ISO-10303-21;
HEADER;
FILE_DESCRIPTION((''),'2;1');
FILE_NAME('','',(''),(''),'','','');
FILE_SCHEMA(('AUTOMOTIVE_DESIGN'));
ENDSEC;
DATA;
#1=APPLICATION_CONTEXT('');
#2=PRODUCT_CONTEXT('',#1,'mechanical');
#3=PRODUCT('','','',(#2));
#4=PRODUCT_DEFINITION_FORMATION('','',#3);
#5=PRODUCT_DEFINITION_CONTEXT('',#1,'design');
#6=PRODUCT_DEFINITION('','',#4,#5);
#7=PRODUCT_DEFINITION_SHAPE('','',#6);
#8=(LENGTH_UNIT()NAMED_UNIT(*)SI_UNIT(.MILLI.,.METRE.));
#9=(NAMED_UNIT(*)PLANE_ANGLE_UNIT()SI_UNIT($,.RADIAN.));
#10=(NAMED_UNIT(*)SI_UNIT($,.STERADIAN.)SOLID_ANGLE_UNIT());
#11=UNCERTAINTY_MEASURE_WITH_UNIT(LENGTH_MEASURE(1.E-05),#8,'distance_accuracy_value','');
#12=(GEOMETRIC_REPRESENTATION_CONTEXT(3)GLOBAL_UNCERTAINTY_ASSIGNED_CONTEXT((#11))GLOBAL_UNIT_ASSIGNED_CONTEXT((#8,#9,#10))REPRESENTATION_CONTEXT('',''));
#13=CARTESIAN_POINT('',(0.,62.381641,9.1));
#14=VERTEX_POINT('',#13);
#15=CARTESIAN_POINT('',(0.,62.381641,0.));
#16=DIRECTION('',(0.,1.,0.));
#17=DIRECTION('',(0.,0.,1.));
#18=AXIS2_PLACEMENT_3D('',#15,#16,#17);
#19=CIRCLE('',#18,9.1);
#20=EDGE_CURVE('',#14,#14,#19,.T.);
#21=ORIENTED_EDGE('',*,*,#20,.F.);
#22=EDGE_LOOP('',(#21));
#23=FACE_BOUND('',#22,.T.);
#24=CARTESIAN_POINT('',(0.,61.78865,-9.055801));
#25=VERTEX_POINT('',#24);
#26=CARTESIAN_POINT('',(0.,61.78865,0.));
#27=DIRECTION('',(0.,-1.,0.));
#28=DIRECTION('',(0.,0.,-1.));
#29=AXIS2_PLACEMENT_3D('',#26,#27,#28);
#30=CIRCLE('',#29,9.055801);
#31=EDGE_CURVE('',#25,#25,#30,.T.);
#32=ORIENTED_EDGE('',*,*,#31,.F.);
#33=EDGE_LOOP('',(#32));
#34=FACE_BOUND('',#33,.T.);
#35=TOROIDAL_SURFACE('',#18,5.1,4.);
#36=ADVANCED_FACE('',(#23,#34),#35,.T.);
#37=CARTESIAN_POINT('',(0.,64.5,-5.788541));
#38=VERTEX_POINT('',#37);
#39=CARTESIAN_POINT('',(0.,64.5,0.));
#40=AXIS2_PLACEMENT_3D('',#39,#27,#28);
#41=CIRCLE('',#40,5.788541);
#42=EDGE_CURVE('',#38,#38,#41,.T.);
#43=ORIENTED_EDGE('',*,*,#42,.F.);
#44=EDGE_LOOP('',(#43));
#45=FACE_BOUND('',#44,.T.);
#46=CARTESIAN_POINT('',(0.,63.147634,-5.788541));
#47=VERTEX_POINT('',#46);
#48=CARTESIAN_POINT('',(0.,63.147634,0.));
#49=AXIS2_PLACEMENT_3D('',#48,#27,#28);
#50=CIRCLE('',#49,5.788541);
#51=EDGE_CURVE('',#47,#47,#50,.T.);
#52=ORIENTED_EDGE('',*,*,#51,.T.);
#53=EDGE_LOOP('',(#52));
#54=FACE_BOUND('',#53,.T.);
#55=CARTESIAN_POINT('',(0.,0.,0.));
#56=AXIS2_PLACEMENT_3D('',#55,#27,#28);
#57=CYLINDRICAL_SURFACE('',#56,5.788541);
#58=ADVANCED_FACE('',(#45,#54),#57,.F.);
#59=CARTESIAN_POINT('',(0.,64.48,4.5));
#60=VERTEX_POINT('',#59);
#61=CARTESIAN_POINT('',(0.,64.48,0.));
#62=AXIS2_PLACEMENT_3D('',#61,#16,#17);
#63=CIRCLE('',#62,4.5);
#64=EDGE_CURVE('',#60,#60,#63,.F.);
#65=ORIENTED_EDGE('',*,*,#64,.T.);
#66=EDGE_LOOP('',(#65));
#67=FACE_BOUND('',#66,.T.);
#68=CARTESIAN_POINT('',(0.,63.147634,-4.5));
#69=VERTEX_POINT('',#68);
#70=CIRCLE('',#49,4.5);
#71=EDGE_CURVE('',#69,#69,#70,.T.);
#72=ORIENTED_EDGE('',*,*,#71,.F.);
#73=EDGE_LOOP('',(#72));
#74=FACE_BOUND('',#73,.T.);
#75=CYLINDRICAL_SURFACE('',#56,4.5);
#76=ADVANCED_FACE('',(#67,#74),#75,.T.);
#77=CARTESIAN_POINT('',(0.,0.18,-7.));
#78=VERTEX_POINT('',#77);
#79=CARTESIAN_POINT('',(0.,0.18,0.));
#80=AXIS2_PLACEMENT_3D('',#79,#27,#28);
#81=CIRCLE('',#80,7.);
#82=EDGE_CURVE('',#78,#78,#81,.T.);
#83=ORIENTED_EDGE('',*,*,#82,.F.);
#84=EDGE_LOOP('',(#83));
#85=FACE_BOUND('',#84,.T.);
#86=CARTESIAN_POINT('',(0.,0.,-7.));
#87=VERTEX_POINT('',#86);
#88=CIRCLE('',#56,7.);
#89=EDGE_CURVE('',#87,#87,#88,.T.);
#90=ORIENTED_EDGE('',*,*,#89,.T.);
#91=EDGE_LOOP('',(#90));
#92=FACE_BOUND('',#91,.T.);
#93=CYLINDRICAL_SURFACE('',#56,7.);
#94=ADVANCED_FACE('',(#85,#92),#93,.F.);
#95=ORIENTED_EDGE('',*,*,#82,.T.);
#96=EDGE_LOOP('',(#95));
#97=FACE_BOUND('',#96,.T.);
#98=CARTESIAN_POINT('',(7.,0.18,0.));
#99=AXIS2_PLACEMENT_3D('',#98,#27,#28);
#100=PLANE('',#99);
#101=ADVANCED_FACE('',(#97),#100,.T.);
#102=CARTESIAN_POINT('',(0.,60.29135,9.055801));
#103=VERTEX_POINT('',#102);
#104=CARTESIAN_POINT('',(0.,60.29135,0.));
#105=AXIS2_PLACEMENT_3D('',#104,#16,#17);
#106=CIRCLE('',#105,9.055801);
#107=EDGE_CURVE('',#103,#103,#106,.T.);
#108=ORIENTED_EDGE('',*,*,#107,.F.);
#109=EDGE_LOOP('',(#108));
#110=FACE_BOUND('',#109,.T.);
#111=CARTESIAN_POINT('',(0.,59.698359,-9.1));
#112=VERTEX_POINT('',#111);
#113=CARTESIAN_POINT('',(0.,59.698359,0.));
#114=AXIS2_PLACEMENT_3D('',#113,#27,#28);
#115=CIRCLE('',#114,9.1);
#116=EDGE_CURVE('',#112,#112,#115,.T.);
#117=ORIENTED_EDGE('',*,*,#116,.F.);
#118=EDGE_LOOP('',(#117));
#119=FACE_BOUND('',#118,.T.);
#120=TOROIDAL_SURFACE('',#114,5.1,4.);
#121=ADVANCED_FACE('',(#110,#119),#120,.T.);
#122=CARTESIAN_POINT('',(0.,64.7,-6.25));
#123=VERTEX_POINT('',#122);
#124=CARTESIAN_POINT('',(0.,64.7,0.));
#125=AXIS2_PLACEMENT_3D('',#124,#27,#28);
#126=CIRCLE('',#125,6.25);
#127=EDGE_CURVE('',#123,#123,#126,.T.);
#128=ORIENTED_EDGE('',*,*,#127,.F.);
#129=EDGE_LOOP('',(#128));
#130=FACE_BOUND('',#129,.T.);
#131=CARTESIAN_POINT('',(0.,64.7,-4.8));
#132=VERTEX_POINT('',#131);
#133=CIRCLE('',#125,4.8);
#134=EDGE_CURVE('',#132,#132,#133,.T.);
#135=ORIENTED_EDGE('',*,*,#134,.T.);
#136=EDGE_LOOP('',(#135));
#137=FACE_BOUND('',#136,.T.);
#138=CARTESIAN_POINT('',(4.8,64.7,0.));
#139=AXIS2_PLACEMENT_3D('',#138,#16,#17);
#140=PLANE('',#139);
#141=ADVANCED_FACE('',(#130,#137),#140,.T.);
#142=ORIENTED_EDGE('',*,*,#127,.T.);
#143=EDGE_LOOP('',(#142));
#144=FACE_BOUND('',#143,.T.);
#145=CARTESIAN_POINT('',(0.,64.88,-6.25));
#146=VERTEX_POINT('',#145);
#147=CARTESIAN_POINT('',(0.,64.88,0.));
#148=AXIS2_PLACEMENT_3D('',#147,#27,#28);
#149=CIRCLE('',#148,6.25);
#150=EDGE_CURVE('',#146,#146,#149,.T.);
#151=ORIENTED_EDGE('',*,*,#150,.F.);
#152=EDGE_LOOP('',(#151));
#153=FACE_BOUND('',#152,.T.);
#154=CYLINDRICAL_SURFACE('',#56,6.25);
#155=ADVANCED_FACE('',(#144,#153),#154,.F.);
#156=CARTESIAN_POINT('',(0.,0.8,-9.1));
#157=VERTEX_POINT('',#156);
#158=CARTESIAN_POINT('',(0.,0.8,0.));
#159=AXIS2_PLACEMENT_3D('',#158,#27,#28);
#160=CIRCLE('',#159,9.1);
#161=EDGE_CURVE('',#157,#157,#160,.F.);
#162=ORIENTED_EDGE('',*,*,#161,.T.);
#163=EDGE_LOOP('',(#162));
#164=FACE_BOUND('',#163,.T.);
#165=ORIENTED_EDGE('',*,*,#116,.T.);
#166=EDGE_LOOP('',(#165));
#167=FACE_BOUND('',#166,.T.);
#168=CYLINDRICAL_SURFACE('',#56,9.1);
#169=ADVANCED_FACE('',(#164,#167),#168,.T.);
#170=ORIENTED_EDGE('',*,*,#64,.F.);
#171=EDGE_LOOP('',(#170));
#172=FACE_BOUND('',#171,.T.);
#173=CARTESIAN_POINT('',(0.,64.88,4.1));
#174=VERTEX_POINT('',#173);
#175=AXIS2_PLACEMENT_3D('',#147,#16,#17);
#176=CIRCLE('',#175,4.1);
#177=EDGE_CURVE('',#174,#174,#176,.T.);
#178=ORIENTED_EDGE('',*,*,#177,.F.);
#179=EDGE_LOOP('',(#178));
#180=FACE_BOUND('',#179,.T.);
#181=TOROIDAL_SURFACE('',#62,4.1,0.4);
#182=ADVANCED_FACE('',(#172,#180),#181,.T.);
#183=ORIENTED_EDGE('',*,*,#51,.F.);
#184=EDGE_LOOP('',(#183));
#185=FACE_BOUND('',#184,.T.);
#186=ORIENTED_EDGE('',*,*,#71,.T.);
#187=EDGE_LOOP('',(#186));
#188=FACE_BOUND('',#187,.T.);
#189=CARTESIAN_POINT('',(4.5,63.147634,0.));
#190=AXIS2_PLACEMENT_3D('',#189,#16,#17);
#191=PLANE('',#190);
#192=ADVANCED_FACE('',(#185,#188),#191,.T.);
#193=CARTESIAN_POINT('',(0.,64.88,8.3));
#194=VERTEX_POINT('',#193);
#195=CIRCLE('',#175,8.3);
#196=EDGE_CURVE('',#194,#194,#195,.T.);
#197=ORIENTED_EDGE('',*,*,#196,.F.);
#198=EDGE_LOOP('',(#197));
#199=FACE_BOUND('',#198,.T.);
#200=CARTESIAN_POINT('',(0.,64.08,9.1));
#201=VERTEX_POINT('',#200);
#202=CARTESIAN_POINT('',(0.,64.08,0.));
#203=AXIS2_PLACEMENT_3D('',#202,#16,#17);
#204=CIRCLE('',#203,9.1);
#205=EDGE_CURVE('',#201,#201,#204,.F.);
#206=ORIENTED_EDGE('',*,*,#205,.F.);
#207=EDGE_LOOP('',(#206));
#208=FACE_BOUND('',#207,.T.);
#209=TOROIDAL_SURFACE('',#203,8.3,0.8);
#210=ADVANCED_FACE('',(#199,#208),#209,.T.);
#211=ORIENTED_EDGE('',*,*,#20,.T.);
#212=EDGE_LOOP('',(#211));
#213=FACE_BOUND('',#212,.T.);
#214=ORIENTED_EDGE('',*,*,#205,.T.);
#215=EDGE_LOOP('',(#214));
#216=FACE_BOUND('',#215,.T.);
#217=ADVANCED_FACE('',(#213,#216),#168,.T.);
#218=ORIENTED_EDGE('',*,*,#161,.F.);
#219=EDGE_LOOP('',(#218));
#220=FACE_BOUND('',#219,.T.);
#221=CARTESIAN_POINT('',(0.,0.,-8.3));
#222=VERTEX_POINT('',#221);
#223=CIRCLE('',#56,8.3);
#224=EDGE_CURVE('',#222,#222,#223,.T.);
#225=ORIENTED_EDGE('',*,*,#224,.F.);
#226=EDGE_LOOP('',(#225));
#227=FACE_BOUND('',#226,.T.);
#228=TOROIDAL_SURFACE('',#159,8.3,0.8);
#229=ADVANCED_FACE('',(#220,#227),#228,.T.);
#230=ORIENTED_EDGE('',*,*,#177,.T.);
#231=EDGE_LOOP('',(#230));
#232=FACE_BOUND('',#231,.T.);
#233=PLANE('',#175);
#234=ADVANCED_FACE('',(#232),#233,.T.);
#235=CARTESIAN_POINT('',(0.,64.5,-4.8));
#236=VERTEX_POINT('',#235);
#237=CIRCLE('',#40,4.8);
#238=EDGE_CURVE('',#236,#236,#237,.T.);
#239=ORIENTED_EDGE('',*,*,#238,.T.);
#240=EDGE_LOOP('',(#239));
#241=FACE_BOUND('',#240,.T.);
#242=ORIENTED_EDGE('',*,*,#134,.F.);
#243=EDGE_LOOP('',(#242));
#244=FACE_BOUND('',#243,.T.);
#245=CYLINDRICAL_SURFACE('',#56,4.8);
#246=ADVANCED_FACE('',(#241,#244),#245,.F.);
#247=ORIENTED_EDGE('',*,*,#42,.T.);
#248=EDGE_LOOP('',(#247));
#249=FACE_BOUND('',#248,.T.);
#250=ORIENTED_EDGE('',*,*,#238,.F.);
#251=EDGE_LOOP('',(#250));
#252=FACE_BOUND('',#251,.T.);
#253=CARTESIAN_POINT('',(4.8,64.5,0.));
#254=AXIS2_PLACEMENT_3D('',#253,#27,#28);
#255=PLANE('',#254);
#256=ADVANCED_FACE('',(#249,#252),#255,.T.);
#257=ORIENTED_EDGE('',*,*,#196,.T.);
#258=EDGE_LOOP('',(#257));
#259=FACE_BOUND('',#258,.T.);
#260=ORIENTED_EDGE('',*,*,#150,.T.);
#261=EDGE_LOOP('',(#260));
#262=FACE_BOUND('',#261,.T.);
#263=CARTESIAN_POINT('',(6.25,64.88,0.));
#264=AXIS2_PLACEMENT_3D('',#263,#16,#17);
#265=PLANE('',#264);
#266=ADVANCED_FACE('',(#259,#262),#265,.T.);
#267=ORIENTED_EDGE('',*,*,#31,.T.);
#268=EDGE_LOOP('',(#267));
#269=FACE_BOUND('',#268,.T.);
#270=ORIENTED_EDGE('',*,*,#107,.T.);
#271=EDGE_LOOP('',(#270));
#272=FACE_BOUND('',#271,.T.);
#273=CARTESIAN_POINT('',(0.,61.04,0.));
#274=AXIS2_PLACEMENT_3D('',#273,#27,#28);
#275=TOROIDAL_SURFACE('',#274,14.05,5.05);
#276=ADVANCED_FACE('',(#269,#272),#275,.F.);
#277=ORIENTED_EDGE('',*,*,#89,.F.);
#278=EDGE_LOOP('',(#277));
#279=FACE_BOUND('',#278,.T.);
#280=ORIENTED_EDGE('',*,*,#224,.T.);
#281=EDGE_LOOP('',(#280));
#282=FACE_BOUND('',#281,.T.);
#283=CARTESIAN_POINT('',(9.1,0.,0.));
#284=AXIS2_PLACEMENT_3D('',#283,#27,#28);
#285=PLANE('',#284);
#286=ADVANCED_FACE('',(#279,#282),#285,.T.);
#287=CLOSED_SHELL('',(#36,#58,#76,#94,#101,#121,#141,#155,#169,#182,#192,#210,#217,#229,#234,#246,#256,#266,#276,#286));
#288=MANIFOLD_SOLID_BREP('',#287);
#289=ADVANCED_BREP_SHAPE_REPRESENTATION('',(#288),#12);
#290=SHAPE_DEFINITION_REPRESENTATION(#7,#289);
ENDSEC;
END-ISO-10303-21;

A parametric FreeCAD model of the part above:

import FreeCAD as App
import Part
import Sketcher
from FreeCAD import Vector


def edges_at(feature, points):
    """Names of the edges that pass closest to the given points."""
    edges = feature.Shape.Edges
    near = lambda p: min(range(len(edges)), key=lambda i: edges[i].distToShape(Part.Vertex(*p))[0])
    return sorted({f"Edge{near(p) + 1}" for p in points})

doc = App.newDocument("Part")
body = doc.addObject("PartDesign::Body", "Body")

sketch1 = doc.addObject("Sketcher::SketchObject", "Sketch")
body.addObject(sketch1)
sketch1.AttachmentSupport = (doc.XY_Plane, [""])
sketch1.MapMode = "FlatFace"
sketch1.addGeometry([
    Part.LineSegment(Vector(4.5, 64.88, 0), Vector(0, 64.88, 0)),
    Part.LineSegment(Vector(0, 64.88, 0), Vector(0, 0.18, 0)),
    Part.LineSegment(Vector(0, 0.18, 0), Vector(7, 0.18, 0)),
    Part.LineSegment(Vector(7, 0.18, 0), Vector(7, 0, 0)),
    Part.LineSegment(Vector(7, 0, 0), Vector(9.1, 0, 0)),
    Part.LineSegment(Vector(9.1, 0, 0), Vector(9.1, 64.88, 0)),
    Part.LineSegment(Vector(9.1, 64.88, 0), Vector(6.25, 64.88, 0)),
    Part.LineSegment(Vector(6.25, 64.88, 0), Vector(6.25, 64.7, 0)),
    Part.LineSegment(Vector(6.25, 64.7, 0), Vector(4.8, 64.7, 0)),
    Part.LineSegment(Vector(4.8, 64.7, 0), Vector(4.8, 64.5, 0)),
    Part.LineSegment(Vector(4.8, 64.5, 0), Vector(5.788541, 64.5, 0)),
    Part.LineSegment(Vector(5.788541, 64.5, 0), Vector(5.788541, 63.147634, 0)),
    Part.LineSegment(Vector(5.788541, 63.147634, 0), Vector(4.5, 63.147634, 0)),
    Part.LineSegment(Vector(4.5, 63.147634, 0), Vector(4.5, 64.88, 0)),
], False)
sketch1.addConstraint([
    Sketcher.Constraint("Coincident", 0, 2, 1, 1),
    Sketcher.Constraint("Coincident", 1, 2, 2, 1),
    Sketcher.Constraint("Coincident", 2, 2, 3, 1),
    Sketcher.Constraint("Coincident", 3, 2, 4, 1),
    Sketcher.Constraint("Coincident", 4, 2, 5, 1),
    Sketcher.Constraint("Coincident", 5, 2, 6, 1),
    Sketcher.Constraint("Coincident", 6, 2, 7, 1),
    Sketcher.Constraint("Coincident", 7, 2, 8, 1),
    Sketcher.Constraint("Coincident", 8, 2, 9, 1),
    Sketcher.Constraint("Coincident", 9, 2, 10, 1),
    Sketcher.Constraint("Coincident", 10, 2, 11, 1),
    Sketcher.Constraint("Coincident", 11, 2, 12, 1),
    Sketcher.Constraint("Coincident", 12, 2, 13, 1),
    Sketcher.Constraint("Coincident", 13, 2, 0, 1),
    Sketcher.Constraint("Horizontal", 0),
    Sketcher.Constraint("Vertical", 1),
    Sketcher.Constraint("Horizontal", 2),
    Sketcher.Constraint("Vertical", 3),
    Sketcher.Constraint("Horizontal", 4),
    Sketcher.Constraint("Vertical", 5),
    Sketcher.Constraint("Horizontal", 6),
    Sketcher.Constraint("Vertical", 7),
    Sketcher.Constraint("Horizontal", 8),
    Sketcher.Constraint("Vertical", 9),
    Sketcher.Constraint("Horizontal", 10),
    Sketcher.Constraint("Vertical", 11),
    Sketcher.Constraint("Horizontal", 12),
    Sketcher.Constraint("Vertical", 13),
    Sketcher.Constraint("PointOnObject", 0, 2, -2),
    Sketcher.Constraint("PointOnObject", 3, 2, -1),
    Sketcher.Constraint("Horizontal", 0, 2, 5, 2),
    Sketcher.Constraint("Equal", 3, 7),
    Sketcher.Constraint("DistanceX", 2, 1, 2, 2, 7.0),
    Sketcher.Constraint("DistanceX", 0, 2, 0, 1, 4.5),
    Sketcher.Constraint("DistanceX", 4, 1, 4, 2, 2.1),
    Sketcher.Constraint("DistanceY", 1, 2, 1, 1, 64.7),
    Sketcher.Constraint("DistanceY", 9, 2, 9, 1, 0.2),
    Sketcher.Constraint("DistanceX", 6, 2, 6, 1, 2.85),
    Sketcher.Constraint("DistanceX", 8, 2, 8, 1, 1.45),
    Sketcher.Constraint("DistanceY", 3, 2, 3, 1, 0.18),
    Sketcher.Constraint("DistanceX", 10, 1, 10, 2, 0.988541),
    Sketcher.Constraint("DistanceY", 11, 2, 11, 1, 1.352366),
])
revolution = doc.addObject("PartDesign::Revolution", "Revolution")
body.addObject(revolution)
revolution.Profile = sketch1
revolution.ReferenceAxis = (sketch1, ["V_Axis"])
revolution.Angle = 360
doc.recompute()

fillet = doc.addObject("PartDesign::Fillet", "Fillet")
body.addObject(fillet)
fillet.Base = (revolution, edges_at(revolution, [(-4.5, 64.88, 0)]))
fillet.Radius = 0.4
doc.recompute()

fillet2 = doc.addObject("PartDesign::Fillet", "Fillet001")
body.addObject(fillet2)
fillet2.Base = (fillet, edges_at(fillet, [(-9.1, 0, 0), (-9.1, 64.88, 0)]))
fillet2.Radius = 0.8

sketch2 = doc.addObject("Sketcher::SketchObject", "Sketch001")
body.addObject(sketch2)
sketch2.AttachmentSupport = (doc.YZ_Plane, [""])
sketch2.MapMode = "FlatFace"
sketch2.addGeometry(Part.Circle(Vector(61.04, -14.05, 0), Vector(0, 0, 1), 5.05), False)
sketch2.addConstraint([
    Sketcher.Constraint("Diameter", 0, 10.1),
    Sketcher.Constraint("DistanceX", -1, 1, 0, 3, 61.04),
    Sketcher.Constraint("DistanceY", 0, 3, -1, 1, 14.05),
])
groove = doc.addObject("PartDesign::Groove", "Groove")
body.addObject(groove)
groove.Profile = sketch2
groove.ReferenceAxis = (sketch2, ["H_Axis"])
groove.Angle = 360
doc.recompute()

fillet3 = doc.addObject("PartDesign::Fillet", "Fillet002")
body.addObject(fillet3)
fillet3.Base = (groove, edges_at(groove, [(6.435, 62.04, -6.435), (-6.435, 60.04, 6.435)]))
fillet3.Radius = 4

doc.recompute()
